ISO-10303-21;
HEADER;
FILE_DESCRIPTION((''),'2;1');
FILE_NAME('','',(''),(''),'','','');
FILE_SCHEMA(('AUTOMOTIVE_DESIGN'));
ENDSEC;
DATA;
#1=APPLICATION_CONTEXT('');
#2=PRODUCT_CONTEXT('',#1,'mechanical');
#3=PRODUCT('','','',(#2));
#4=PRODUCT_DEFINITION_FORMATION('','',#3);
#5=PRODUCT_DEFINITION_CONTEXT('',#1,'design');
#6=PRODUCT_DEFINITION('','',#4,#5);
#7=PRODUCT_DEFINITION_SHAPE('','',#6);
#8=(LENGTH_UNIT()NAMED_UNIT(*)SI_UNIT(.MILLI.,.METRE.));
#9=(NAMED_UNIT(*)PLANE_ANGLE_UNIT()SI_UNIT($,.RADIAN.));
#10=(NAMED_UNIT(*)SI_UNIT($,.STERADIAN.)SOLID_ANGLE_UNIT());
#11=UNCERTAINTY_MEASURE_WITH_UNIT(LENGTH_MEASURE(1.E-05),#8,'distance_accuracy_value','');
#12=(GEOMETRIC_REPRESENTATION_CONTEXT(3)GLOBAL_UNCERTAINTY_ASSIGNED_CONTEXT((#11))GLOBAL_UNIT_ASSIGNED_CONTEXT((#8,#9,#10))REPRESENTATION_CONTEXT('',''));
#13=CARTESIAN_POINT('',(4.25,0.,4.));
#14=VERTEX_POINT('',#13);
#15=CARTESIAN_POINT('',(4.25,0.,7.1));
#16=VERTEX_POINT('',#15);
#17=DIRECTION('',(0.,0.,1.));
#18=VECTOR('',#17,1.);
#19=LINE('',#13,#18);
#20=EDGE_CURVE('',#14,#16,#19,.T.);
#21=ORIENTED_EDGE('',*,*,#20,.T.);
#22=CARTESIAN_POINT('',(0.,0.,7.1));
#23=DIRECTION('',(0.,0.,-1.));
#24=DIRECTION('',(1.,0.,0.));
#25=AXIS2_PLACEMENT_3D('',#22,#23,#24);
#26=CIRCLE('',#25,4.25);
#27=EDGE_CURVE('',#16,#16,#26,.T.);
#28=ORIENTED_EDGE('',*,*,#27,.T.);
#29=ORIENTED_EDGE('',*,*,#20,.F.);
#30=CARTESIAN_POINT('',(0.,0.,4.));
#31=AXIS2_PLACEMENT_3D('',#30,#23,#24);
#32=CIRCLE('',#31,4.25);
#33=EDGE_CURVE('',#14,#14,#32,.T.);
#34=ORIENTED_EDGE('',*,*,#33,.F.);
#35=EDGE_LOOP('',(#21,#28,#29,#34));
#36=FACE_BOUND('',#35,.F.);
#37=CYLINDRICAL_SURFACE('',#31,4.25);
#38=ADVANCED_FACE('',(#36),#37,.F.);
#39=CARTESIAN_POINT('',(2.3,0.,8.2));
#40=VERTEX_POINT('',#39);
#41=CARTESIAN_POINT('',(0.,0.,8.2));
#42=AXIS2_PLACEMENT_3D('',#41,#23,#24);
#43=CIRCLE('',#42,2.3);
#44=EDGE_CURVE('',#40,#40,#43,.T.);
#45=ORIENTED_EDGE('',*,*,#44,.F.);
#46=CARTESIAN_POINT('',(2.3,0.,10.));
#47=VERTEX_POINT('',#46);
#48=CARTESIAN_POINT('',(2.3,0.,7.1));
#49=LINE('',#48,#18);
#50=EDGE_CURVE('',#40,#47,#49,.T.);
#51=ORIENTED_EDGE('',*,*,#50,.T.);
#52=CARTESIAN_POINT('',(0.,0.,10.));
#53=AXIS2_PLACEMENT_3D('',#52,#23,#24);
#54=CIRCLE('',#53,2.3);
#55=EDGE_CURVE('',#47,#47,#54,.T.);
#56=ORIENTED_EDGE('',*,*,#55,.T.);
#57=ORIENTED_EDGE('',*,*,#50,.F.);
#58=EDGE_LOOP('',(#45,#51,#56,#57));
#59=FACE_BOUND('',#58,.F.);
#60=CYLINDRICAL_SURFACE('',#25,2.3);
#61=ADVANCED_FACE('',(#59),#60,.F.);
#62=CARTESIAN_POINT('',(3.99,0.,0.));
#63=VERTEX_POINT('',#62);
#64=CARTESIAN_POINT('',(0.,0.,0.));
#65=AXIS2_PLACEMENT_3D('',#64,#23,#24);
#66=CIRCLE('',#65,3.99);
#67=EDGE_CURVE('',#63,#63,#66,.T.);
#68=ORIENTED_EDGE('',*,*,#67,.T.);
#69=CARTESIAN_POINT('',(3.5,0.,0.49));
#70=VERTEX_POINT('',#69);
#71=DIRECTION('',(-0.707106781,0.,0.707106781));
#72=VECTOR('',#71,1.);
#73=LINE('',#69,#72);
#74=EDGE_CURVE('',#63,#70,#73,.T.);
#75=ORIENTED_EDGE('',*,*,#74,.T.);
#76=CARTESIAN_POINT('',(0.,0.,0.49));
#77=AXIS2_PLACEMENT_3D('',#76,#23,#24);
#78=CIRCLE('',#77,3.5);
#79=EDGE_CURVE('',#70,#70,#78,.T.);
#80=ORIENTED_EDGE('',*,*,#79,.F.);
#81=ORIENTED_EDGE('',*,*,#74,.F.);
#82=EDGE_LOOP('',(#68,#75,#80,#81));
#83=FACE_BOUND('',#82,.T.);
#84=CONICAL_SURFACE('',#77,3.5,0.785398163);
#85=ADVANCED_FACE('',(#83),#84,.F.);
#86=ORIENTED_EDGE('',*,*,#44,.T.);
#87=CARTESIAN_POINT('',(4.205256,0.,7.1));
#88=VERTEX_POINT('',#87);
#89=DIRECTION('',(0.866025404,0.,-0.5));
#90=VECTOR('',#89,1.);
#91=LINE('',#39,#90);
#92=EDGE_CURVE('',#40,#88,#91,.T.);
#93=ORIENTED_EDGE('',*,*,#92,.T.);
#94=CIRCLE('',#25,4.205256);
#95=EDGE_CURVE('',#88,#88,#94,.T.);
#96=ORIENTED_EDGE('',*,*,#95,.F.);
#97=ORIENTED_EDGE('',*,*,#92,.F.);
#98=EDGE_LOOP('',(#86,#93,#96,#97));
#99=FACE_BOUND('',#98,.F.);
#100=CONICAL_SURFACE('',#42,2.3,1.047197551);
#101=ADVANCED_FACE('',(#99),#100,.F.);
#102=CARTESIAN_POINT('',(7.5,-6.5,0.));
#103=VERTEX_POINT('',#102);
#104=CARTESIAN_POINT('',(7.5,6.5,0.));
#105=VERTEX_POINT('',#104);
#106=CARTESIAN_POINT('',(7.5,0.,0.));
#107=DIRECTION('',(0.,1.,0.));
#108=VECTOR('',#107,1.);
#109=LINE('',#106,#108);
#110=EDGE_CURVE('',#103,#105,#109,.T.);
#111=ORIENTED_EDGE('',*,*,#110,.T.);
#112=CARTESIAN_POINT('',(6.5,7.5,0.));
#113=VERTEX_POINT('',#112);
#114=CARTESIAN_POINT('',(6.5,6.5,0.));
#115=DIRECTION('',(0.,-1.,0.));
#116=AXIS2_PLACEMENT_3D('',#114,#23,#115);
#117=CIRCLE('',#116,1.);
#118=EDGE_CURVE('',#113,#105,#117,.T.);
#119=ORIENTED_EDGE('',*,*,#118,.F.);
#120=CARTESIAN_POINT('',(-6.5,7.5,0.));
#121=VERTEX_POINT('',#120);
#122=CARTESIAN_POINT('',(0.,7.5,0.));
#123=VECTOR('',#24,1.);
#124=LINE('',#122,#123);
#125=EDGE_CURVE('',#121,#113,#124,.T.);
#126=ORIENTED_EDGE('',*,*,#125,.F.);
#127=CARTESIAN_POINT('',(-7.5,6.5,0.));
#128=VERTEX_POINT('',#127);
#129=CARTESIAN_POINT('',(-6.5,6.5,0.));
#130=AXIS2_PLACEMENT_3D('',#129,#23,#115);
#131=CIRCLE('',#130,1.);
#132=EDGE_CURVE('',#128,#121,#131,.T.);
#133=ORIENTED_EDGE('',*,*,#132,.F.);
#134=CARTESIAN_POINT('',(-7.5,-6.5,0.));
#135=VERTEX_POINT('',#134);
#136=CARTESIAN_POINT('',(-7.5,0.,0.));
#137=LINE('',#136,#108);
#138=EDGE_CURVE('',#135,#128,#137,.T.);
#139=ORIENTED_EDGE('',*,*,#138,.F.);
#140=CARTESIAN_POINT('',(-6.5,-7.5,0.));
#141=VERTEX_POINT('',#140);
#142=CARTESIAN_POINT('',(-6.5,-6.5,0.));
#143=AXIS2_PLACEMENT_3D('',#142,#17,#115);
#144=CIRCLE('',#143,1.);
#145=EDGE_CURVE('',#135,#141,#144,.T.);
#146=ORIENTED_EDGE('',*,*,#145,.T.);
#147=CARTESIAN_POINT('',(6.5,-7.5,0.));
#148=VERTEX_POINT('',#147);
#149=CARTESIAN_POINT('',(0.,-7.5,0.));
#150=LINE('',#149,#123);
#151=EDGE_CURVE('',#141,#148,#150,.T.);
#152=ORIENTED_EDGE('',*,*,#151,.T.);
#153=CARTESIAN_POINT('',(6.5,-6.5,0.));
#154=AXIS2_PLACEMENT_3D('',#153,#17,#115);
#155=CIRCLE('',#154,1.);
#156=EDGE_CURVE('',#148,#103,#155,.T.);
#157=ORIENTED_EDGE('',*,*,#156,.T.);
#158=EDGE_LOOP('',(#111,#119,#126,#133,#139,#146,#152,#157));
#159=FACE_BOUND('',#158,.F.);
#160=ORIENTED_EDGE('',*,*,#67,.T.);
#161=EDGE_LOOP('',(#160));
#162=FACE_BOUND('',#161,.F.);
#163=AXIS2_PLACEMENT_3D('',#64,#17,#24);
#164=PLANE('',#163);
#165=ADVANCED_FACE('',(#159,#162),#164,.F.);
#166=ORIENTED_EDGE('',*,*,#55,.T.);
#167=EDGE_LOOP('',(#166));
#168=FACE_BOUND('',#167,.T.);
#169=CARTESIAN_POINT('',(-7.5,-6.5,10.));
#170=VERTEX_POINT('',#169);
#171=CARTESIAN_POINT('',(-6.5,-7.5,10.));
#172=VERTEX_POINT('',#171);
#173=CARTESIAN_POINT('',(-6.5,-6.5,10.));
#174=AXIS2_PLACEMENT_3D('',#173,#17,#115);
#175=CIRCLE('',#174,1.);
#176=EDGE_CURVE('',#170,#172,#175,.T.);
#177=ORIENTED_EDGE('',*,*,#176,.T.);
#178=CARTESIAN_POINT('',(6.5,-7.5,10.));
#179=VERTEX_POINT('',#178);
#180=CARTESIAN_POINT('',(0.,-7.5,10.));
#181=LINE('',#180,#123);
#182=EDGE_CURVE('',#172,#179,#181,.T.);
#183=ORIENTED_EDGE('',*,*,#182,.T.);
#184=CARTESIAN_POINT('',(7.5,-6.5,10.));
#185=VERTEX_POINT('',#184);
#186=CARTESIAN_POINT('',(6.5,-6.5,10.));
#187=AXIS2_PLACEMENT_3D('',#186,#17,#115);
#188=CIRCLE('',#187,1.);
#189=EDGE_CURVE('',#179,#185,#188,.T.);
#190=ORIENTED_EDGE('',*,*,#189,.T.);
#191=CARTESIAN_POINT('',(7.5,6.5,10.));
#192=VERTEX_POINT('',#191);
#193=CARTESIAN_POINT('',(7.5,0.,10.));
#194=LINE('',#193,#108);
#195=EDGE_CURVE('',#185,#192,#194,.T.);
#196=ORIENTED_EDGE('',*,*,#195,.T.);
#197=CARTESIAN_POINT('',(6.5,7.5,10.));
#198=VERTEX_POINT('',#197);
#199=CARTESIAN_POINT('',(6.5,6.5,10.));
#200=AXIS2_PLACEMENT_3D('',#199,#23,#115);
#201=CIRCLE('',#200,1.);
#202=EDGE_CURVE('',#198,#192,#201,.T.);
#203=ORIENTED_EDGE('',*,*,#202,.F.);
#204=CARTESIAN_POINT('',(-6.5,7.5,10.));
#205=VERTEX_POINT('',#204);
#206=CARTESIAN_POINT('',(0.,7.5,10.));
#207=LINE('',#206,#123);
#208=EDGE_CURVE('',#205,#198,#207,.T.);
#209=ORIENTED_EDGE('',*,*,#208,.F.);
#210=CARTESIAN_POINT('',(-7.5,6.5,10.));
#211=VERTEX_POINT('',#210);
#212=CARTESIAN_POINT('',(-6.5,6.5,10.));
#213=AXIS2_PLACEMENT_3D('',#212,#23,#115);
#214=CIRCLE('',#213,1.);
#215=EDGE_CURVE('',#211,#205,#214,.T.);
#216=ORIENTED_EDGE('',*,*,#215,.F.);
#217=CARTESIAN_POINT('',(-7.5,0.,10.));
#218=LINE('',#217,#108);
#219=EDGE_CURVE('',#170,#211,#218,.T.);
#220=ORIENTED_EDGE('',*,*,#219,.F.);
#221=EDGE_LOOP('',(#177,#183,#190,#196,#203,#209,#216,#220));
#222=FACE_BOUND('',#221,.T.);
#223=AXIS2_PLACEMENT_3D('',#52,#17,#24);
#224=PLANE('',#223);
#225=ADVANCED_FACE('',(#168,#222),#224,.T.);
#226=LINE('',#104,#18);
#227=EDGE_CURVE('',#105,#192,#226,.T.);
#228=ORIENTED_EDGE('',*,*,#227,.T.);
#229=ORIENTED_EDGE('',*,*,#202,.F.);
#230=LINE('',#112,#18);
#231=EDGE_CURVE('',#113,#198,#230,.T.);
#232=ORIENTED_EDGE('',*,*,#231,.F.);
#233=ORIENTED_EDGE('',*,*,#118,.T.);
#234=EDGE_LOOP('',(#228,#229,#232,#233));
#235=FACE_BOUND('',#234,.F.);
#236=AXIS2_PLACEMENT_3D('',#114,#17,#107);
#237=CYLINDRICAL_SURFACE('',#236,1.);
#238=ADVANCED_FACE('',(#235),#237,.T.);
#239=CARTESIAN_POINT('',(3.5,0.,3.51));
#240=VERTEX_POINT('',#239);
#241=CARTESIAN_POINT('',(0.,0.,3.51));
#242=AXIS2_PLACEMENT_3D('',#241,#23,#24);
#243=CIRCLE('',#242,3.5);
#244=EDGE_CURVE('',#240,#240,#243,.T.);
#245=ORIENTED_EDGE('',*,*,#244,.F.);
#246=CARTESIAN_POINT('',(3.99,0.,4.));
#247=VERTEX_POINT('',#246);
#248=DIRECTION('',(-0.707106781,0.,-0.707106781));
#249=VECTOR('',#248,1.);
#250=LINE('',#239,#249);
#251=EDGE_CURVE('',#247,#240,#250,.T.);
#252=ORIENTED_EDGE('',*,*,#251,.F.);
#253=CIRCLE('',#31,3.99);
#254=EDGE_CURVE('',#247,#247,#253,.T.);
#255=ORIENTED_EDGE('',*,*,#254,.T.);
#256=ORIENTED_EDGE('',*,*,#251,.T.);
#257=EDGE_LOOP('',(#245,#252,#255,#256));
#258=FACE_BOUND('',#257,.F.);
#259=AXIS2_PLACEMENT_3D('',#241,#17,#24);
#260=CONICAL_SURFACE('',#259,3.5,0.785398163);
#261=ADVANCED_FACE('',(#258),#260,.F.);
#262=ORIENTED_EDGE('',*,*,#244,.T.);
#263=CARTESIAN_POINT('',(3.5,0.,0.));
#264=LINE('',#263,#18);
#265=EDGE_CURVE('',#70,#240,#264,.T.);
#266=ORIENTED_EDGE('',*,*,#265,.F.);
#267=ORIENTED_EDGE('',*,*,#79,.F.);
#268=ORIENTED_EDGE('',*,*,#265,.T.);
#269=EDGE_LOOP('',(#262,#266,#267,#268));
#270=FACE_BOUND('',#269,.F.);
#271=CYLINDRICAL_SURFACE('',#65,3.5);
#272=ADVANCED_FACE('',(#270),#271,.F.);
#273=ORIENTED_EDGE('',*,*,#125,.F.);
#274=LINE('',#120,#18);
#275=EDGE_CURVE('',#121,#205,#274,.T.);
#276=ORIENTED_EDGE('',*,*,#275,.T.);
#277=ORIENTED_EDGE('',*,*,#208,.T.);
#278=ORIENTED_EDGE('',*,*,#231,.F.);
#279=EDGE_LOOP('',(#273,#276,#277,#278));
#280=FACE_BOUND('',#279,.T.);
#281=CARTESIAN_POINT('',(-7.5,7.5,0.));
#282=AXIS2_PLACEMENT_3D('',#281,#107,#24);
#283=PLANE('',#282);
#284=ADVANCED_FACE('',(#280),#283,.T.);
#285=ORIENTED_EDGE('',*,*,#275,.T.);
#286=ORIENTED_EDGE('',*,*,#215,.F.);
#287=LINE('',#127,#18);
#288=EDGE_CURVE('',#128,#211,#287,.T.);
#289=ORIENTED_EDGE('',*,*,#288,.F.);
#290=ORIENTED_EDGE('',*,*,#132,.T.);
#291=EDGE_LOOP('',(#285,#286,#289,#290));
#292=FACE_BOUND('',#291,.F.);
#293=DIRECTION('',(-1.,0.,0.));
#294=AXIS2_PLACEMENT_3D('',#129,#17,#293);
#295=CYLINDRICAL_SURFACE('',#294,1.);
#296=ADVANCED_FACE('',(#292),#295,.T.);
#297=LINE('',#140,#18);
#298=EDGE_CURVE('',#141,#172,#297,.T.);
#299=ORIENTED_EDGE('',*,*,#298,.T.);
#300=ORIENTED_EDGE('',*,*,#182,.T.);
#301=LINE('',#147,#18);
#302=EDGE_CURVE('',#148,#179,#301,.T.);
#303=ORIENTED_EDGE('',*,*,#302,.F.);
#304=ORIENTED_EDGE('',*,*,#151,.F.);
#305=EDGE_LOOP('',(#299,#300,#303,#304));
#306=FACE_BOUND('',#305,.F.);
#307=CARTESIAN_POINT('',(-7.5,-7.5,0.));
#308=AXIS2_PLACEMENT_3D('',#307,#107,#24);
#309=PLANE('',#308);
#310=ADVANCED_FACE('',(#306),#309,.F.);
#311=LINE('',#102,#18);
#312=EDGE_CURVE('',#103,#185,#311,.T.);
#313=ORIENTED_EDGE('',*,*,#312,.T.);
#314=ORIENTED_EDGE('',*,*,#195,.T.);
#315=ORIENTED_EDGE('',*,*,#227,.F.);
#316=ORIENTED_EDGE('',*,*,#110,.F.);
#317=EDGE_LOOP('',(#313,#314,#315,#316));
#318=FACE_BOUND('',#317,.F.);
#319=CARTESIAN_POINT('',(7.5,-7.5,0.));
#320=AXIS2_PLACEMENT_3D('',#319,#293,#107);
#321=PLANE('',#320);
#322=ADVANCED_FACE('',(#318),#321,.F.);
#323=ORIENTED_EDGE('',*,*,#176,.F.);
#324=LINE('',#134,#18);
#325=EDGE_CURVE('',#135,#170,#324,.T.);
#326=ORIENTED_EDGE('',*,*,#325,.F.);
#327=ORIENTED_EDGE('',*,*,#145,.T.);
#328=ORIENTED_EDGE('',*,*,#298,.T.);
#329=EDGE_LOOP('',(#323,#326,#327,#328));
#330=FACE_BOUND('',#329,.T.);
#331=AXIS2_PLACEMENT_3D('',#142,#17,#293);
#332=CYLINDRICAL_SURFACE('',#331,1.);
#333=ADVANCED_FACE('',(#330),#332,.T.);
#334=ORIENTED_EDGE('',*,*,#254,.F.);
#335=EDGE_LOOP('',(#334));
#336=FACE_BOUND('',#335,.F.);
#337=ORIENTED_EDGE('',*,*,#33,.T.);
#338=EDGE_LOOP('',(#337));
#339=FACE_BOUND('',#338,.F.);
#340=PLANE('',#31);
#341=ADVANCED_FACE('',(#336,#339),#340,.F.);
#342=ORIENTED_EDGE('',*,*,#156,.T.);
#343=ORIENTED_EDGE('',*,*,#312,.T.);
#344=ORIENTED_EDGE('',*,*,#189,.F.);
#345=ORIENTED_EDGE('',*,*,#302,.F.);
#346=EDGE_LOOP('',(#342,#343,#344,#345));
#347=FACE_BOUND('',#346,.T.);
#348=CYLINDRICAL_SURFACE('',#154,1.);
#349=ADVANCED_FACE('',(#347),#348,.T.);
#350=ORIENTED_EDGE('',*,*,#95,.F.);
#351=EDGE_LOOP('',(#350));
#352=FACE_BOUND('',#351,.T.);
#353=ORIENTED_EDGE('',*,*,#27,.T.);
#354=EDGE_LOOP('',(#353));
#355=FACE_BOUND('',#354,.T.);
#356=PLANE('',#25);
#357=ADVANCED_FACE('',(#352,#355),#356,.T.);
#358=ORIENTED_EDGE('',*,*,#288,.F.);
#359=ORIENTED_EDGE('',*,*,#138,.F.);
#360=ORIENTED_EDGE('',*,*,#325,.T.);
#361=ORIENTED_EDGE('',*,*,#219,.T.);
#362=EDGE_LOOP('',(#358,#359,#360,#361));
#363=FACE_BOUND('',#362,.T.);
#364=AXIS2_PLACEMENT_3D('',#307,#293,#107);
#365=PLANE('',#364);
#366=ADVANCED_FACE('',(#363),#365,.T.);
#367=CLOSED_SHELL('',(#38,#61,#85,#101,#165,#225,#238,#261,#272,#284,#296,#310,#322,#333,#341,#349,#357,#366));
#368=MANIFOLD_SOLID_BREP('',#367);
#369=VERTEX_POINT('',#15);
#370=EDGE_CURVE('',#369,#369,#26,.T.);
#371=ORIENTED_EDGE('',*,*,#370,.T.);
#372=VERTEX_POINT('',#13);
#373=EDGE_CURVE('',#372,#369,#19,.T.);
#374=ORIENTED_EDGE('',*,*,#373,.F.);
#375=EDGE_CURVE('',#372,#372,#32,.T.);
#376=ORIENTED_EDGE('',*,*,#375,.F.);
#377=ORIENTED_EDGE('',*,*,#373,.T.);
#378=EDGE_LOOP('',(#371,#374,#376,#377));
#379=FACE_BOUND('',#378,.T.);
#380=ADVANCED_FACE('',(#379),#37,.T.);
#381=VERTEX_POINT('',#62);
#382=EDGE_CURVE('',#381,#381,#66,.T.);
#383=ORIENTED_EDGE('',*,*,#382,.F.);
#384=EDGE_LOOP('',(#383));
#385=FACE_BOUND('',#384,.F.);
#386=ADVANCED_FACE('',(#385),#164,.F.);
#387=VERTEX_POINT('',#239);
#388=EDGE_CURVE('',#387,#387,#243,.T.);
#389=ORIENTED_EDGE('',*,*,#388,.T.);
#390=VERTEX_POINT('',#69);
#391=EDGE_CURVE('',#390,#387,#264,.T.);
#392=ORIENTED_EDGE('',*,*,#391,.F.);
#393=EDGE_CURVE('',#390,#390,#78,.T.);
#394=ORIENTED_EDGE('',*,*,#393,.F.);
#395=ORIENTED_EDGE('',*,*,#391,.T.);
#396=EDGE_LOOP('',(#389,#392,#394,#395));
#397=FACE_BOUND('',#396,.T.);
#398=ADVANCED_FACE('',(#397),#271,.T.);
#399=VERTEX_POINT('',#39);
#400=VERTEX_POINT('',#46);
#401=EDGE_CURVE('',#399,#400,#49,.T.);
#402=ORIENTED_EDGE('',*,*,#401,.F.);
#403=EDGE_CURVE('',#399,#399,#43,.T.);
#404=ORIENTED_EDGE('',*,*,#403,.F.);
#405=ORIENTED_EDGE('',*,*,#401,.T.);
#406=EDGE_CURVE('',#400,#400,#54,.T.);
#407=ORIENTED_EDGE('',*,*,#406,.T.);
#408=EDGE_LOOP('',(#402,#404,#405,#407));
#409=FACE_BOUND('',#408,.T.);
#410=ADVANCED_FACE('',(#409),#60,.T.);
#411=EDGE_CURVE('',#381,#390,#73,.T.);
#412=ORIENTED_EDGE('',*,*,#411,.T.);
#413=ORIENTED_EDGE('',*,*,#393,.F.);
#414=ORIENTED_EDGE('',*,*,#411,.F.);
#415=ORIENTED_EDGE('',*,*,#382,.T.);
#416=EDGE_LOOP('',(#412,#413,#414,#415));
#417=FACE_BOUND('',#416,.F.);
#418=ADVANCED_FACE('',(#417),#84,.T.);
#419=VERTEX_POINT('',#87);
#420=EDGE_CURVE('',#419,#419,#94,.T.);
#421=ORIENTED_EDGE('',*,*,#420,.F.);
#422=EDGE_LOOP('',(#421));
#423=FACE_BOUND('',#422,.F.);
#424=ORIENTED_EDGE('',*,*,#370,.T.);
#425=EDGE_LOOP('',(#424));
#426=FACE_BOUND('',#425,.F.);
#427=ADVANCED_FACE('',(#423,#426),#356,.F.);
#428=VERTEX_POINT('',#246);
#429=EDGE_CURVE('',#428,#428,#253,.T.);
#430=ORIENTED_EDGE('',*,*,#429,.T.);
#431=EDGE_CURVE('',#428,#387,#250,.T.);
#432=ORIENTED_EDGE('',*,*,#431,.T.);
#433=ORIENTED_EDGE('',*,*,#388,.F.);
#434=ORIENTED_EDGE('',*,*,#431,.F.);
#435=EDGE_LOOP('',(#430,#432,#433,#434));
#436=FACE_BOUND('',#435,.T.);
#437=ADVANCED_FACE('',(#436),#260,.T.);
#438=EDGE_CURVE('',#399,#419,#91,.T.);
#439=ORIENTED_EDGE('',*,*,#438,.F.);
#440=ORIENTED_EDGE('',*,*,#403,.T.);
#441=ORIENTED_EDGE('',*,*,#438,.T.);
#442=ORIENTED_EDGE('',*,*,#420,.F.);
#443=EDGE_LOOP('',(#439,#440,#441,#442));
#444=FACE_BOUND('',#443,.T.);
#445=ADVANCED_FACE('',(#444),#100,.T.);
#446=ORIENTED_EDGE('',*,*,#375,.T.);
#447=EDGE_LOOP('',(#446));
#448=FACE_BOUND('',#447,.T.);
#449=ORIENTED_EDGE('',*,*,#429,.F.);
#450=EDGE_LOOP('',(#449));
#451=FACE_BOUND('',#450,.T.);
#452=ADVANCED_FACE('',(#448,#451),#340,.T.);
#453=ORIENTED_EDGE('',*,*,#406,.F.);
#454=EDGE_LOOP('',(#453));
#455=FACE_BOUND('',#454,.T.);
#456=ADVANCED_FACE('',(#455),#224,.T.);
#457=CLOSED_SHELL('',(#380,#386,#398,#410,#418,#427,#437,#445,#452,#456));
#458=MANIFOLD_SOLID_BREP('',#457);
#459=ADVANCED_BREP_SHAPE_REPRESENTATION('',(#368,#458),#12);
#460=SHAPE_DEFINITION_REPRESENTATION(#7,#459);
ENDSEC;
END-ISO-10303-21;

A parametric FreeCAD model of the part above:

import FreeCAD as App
import Part
import Sketcher

V = App.Vector


def edges_at(feature, points):
    """Names of the edges that pass closest to the given points."""
    edges = feature.Shape.Edges
    near = lambda p: min(range(len(edges)), key=lambda i: edges[i].distToShape(Part.Vertex(*p))[0])
    return sorted({f"Edge{near(p) + 1}" for p in points})


def add_polygon(sketch, points):
    """Adds a closed chain of lines whose ends are joined by coincident constraints."""
    first, n = sketch.GeometryCount, len(points)
    for a, b in zip(points, points[1:] + points[:1]):
        sketch.addGeometry(Part.LineSegment(App.Vector(*a, 0), App.Vector(*b, 0)), False)
    for i in range(n):
        sketch.addConstraint(Sketcher.Constraint("Coincident", first + i, 2, first + (i + 1) % n, 1))

doc = App.newDocument("Part")
body = doc.addObject("PartDesign::Body", "Body")

sketch1 = body.newObject("Sketcher::SketchObject", "Sketch")
sketch1.AttachmentSupport = (doc.getObject("XY_Plane"), [""])
sketch1.MapMode = "FlatFace"
add_polygon(sketch1, [(-7.5, 7.5), (-7.5, -7.5), (7.5, -7.5), (7.5, 7.5)])
sketch1.addConstraint(Sketcher.Constraint("Vertical", 0))
sketch1.addConstraint(Sketcher.Constraint("Horizontal", 1))
sketch1.addConstraint(Sketcher.Constraint("Vertical", 2))
sketch1.addConstraint(Sketcher.Constraint("Horizontal", 3))
sketch1.addConstraint(Sketcher.Constraint("Symmetric", 0, 2, 2, 2, -1, 1))
sketch1.addConstraint(Sketcher.Constraint("Equal", 3, 0))
sketch1.addConstraint(Sketcher.Constraint("DistanceX", 1, 1, 1, 2, 15.0))
pad1 = body.newObject("PartDesign::Pad", "Pad")
pad1.Profile = sketch1
pad1.Length = 10

sketch2 = body.newObject("Sketcher::SketchObject", "Sketch001")
sketch2.AttachmentSupport = (doc.getObject("XY_Plane"), [""])
sketch2.MapMode = "FlatFace"
sketch2.addGeometry(Part.Circle(V(0, 0, 0), V(0, 0, 1), 3.5), False)
sketch2.addConstraint(Sketcher.Constraint("Coincident", 0, 3, -1, 1))
sketch2.addConstraint(Sketcher.Constraint("Diameter", 0, 7.0))
pocket1 = body.newObject("PartDesign::Pocket", "Pocket")
pocket1.Profile = sketch2
pocket1.Length = 4
pocket1.Reversed = True

sketch3 = body.newObject("Sketcher::SketchObject", "Sketch002")
sketch3.AttachmentSupport = (doc.getObject("XY_Plane"), [""])
sketch3.MapMode = "FlatFace"
sketch3.AttachmentOffset = App.Placement(V(0, 0, 4), App.Rotation())
sketch3.addGeometry(Part.Circle(V(0, 0, 0), V(0, 0, 1), 4.25), False)
sketch3.addConstraint(Sketcher.Constraint("Coincident", 0, 3, -1, 1))
sketch3.addConstraint(Sketcher.Constraint("Diameter", 0, 8.5))
pocket2 = body.newObject("PartDesign::Pocket", "Pocket001")
pocket2.Profile = sketch3
pocket2.Length = 3.1
pocket2.Reversed = True

sketch4 = body.newObject("Sketcher::SketchObject", "Sketch003")
sketch4.AttachmentSupport = (doc.getObject("XY_Plane"), [""])
sketch4.MapMode = "FlatFace"
sketch4.AttachmentOffset = App.Placement(V(0, 0, 7.1), App.Rotation())
sketch4.addGeometry(Part.Circle(V(0, 0, 0), V(0, 0, 1), 2.3), False)
sketch4.addConstraint(Sketcher.Constraint("Coincident", 0, 3, -1, 1))
sketch4.addConstraint(Sketcher.Constraint("Diameter", 0, 4.6))
pocket3 = body.newObject("PartDesign::Pocket", "Pocket002")
pocket3.Profile = sketch4
pocket3.Type = "ThroughAll"
pocket3.Reversed = True
doc.recompute()

chamfer = body.newObject("PartDesign::Chamfer", "Chamfer")
chamfer.Base = (pocket3, edges_at(pocket3, [(-2.3, 0, 7.1)]))
chamfer.ChamferType = "Distance and Angle"
chamfer.Size = 1.1
chamfer.Angle = 60
doc.recompute()

chamfer2 = body.newObject("PartDesign::Chamfer", "Chamfer001")
chamfer2.Base = (chamfer, edges_at(chamfer, [(-3.5, 0, 4), (-3.5, 0, 0)]))
chamfer2.Size = 0.49
doc.recompute()

fillet = body.newObject("PartDesign::Fillet", "Fillet")
fillet.Base = (chamfer2, edges_at(chamfer2, [
    (-7.5, -7.5, 5),
    (-7.5, 7.5, 5),
    (7.5, -7.5, 5),
    (7.5, 7.5, 5),
]))
fillet.Radius = 1
body2 = doc.addObject("PartDesign::Body", "Body001")
doc.recompute()

body2.BaseFeature = body
doc.recompute()
body3 = doc.addObject("PartDesign::Body", "Body002")

sketch5 = body3.newObject("Sketcher::SketchObject", "Sketch004")
sketch5.AttachmentSupport = (doc.getObject("XY_Plane002"), [""])
sketch5.MapMode = "FlatFace"
sketch5.addGeometry(Part.Circle(V(0, 0, 0), V(0, 0, 1), 7.012338), False)
sketch5.addConstraint(Sketcher.Constraint("Coincident", 0, 3, -1, 1))
sketch5.addConstraint(Sketcher.Constraint("Diameter", 0, 14.024676))
pad2 = body3.newObject("PartDesign::Pad", "Pad001")
pad2.Profile = sketch5
pad2.Length = 10
doc.recompute()

boolean = body3.newObject("PartDesign::Boolean", "Boolean")
boolean.Type = "Cut"
boolean.addObjects([body2])

doc.recompute()
